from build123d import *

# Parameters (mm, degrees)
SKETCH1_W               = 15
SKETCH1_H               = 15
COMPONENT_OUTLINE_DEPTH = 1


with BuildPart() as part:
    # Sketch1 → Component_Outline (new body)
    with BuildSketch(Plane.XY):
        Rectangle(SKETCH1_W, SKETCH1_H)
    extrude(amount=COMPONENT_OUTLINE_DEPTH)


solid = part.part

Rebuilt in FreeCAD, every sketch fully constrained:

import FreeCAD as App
import Part
import Sketcher
from FreeCAD import Vector


def add_polygon(sketch, points):
    """Adds a closed chain of lines whose ends are joined by coincident constraints."""
    first, n = sketch.GeometryCount, len(points)
    for a, b in zip(points, points[1:] + points[:1]):
        sketch.addGeometry(Part.LineSegment(App.Vector(*a, 0), App.Vector(*b, 0)), False)
    for i in range(n):
        sketch.addConstraint(Sketcher.Constraint("Coincident", first + i, 2, first + (i + 1) % n, 1))

doc = App.newDocument("Part")
params = doc.addObject("Spreadsheet::Sheet", "Params")
for row, (alias, value) in enumerate([
    ("sketch1_width", "15 mm"),
    ("pad1_length", "1 mm"),
], start=1):
    params.set(f"A{row}", alias)
    params.set(f"B{row}", "=" + value)
    params.setAlias(f"B{row}", alias)

body = doc.addObject("PartDesign::Body", "Body")

# Sketch on XY plane
sketch1 = doc.addObject("Sketcher::SketchObject", "Sketch")
body.addObject(sketch1)
sketch1.AttachmentSupport = (doc.XY_Plane, [""])
sketch1.MapMode = "FlatFace"
add_polygon(sketch1, [(-8, 8), (-8, -8), (8, -8), (8, 8)])  # lines 0-3
sketch1.addConstraint(Sketcher.Constraint("Vertical", 0))
sketch1.addConstraint(Sketcher.Constraint("Horizontal", 1))
sketch1.addConstraint(Sketcher.Constraint("Vertical", 2))
sketch1.addConstraint(Sketcher.Constraint("Horizontal", 3))
sketch1.addConstraint(Sketcher.Constraint("Symmetric", 0, 2, 2, 2, -1, 1))
sketch1.addConstraint(Sketcher.Constraint("Equal", 3, 0))
sketch1.addConstraint(Sketcher.Constraint("DistanceX", 1, 1, 1, 2, 15.0))
sketch1.setExpression("Constraints[10]", "Params.sketch1_width")
pad1 = doc.addObject("PartDesign::Pad", "Pad")
body.addObject(pad1)
pad1.Profile = sketch1
pad1.setExpression("Length", "Params.pad1_length")

doc.recompute()
